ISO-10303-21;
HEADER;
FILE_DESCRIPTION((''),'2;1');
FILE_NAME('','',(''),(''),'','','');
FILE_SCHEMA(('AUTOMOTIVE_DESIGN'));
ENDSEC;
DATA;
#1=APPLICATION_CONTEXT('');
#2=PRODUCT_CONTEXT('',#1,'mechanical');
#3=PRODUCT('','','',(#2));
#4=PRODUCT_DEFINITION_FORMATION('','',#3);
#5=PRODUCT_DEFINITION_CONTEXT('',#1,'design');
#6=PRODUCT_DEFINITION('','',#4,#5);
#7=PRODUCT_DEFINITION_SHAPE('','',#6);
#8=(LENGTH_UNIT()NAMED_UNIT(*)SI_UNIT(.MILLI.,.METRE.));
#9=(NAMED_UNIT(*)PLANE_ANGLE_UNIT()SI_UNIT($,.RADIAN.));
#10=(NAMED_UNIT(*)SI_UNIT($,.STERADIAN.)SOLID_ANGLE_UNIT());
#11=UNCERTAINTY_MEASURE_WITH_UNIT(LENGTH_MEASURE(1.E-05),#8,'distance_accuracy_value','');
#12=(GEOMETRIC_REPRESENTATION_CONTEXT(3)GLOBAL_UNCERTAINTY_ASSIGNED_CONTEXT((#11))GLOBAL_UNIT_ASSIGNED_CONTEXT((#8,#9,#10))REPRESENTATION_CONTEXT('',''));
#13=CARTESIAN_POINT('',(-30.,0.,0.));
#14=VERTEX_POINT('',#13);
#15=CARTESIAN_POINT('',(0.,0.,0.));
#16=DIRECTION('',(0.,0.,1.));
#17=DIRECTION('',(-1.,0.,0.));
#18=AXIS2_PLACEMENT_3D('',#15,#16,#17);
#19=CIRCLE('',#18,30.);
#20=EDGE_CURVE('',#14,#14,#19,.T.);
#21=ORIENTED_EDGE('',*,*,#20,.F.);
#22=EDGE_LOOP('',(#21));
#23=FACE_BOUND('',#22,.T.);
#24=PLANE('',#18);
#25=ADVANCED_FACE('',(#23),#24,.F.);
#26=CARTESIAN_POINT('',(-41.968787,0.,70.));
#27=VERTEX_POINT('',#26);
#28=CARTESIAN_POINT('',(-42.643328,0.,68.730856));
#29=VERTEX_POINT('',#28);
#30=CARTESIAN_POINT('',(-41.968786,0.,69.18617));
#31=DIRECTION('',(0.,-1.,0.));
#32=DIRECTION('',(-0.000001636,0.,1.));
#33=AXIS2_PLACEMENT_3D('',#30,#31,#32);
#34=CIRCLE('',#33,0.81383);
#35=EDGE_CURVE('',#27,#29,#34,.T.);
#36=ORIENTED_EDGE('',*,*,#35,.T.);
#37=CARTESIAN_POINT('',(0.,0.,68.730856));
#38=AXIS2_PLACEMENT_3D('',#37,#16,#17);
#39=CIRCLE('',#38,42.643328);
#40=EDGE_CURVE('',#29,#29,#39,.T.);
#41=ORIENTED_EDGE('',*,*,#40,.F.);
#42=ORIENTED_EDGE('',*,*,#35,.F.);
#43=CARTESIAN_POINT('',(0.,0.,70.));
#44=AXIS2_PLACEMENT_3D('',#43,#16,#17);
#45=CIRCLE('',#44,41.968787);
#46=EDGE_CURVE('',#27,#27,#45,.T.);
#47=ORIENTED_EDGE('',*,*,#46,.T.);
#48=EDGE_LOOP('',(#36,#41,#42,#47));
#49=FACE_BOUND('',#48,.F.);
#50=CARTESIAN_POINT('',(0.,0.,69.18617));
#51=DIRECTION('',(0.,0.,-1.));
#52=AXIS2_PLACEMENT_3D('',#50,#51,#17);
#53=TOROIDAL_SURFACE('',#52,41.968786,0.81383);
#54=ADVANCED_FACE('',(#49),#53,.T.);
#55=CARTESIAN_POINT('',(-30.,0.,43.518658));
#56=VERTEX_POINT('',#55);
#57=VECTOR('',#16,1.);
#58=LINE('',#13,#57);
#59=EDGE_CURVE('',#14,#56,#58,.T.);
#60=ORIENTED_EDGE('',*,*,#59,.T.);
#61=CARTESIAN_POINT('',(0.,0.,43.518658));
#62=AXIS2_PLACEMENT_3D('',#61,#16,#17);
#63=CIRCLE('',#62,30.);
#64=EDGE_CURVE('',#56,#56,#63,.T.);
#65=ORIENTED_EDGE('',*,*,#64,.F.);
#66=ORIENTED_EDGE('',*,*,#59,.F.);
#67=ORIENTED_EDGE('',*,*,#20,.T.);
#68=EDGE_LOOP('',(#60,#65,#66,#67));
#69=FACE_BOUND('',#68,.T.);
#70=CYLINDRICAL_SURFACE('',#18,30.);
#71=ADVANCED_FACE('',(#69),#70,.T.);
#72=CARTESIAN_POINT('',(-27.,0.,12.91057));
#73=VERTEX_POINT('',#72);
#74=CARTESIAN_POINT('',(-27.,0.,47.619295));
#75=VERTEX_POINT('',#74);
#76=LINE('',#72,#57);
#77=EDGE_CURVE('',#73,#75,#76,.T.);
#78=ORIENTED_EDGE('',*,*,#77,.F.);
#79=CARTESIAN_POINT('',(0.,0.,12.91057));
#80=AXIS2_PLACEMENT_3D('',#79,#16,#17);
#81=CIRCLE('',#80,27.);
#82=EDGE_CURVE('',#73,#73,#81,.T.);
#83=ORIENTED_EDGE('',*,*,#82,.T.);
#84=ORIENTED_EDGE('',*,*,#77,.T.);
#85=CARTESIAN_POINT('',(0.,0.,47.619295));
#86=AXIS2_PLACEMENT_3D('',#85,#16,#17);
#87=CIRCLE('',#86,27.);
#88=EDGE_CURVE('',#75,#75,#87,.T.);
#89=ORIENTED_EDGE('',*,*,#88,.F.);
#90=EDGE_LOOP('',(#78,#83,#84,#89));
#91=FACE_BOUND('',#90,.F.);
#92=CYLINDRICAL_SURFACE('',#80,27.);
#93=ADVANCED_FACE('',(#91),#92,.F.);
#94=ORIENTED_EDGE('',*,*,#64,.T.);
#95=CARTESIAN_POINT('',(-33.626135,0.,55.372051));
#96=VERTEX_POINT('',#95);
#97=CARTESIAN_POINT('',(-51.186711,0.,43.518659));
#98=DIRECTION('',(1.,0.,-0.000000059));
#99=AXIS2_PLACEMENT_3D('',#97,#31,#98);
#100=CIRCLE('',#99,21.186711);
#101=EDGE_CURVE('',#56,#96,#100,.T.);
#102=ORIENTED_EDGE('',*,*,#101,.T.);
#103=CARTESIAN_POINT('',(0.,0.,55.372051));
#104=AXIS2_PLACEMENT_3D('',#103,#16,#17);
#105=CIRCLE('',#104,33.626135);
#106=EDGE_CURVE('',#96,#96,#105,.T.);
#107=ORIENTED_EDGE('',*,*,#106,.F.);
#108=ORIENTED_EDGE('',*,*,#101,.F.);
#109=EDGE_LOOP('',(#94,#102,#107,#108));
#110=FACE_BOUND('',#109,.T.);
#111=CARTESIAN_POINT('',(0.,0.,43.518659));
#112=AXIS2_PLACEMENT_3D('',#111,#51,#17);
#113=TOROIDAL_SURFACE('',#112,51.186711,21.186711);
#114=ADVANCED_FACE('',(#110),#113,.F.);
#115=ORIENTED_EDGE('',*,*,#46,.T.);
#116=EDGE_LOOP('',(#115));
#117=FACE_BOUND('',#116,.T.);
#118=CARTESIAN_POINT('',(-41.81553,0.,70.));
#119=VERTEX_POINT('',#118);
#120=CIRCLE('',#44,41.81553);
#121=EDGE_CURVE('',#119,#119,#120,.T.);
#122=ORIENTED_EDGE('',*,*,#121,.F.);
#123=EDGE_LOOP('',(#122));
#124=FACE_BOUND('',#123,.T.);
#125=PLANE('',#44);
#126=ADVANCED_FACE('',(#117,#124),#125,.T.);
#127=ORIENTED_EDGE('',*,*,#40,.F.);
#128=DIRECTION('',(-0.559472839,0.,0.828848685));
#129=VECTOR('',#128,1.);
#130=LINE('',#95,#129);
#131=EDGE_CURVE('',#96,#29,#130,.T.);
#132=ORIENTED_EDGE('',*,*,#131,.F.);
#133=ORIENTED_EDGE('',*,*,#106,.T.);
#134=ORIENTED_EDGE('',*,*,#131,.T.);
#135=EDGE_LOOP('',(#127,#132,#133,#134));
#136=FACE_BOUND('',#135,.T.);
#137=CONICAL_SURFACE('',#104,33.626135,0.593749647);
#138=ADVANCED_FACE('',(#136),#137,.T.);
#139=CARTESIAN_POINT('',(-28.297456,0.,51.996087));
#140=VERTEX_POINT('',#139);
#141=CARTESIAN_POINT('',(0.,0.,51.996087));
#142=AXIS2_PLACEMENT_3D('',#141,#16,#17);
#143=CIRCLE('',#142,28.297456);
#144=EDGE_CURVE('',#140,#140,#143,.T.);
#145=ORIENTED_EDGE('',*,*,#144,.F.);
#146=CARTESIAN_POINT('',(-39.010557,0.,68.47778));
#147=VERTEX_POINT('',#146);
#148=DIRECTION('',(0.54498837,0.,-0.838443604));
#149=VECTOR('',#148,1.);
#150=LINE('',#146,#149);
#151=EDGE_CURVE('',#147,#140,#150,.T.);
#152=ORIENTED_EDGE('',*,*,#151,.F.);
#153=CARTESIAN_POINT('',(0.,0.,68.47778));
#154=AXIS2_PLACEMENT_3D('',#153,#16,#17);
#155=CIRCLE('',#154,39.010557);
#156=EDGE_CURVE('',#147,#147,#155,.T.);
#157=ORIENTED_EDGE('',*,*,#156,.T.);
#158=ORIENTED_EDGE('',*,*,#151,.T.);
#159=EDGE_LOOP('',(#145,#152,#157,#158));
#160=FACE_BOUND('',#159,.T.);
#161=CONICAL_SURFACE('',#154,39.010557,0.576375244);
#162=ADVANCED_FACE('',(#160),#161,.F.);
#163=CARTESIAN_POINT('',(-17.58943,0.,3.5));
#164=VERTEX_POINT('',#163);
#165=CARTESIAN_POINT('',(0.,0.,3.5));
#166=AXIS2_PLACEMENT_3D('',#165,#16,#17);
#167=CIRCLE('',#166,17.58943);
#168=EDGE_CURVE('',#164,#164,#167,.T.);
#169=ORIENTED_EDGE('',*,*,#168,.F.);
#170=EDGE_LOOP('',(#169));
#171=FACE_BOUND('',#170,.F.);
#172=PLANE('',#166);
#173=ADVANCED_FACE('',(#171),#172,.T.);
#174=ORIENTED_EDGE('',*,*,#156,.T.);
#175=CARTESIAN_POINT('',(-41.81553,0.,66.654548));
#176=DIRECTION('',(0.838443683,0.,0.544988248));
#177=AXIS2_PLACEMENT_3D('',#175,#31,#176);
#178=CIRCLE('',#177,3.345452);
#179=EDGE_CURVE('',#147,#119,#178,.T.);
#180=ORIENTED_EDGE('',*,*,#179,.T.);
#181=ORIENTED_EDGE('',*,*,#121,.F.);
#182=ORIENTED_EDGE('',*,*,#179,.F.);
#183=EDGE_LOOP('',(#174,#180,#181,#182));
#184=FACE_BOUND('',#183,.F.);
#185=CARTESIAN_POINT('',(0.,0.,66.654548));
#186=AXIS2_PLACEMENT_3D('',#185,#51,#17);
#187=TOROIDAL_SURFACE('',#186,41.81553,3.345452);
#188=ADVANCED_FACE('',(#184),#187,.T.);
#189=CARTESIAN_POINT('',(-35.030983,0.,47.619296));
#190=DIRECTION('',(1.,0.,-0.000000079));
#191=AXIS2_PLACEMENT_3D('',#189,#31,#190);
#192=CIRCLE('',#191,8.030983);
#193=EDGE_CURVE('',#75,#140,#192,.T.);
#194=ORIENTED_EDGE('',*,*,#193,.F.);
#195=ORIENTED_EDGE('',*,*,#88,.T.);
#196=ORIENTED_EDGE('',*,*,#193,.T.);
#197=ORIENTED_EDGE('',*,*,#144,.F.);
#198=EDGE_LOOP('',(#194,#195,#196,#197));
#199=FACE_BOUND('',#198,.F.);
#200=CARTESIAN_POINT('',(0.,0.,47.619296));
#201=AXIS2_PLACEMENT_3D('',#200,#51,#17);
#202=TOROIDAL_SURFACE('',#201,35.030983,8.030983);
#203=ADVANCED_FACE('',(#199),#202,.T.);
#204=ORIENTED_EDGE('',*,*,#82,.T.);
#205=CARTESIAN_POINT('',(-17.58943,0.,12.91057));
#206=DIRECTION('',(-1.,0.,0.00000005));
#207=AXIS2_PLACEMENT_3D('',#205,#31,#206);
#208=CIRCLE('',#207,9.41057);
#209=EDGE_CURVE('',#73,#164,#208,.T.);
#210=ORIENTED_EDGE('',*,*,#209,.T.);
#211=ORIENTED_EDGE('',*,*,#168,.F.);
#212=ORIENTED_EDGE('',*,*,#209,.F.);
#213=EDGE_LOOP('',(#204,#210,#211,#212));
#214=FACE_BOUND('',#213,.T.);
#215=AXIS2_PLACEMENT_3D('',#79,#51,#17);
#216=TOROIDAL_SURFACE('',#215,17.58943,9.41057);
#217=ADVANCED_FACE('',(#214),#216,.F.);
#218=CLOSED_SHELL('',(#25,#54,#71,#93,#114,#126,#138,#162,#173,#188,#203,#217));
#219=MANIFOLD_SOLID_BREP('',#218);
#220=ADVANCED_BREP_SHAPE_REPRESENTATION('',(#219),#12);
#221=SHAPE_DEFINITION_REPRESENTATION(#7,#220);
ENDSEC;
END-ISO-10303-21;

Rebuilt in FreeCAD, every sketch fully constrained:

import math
import FreeCAD as App
import Part
import Sketcher

V = App.Vector

doc = App.newDocument("Part")
body = doc.addObject("PartDesign::Body", "Body")

# Sketch on XZ plane
sketch1 = body.newObject("Sketcher::SketchObject", "Sketch")
sketch1.AttachmentSupport = (doc.getObject("XZ_Plane"), [""])
sketch1.MapMode = "FlatFace"
sketch1.addGeometry(Part.LineSegment(V(-30, 0, 0), V(0, 0, 0)), False)
sketch1.addGeometry(Part.LineSegment(V(0, 0, 0), V(0, 3.5, 0)), False)
sketch1.addGeometry(Part.LineSegment(V(0, 3.5, 0), V(-17.59, 3.5, 0)), False)
sketch1.addGeometry(Part.ArcOfCircle(Part.Circle(V(-17.59, 12.91, 0), V(0, 0, 1), 9.41), math.radians(180), math.radians(270)), False)
sketch1.addGeometry(Part.LineSegment(V(-27, 12.91, 0), V(-27, 47.62, 0)), False)
sketch1.addGeometry(Part.ArcOfCircle(Part.Circle(V(-35.03, 47.62, 0), V(0, 0, 1), 8.03), math.radians(0), math.radians(33)), False)
sketch1.addGeometry(Part.LineSegment(V(-28.3, 52, 0), V(-39.01, 68.48, 0)), False)
sketch1.addGeometry(Part.ArcOfCircle(Part.Circle(V(-41.82, 66.65, 0), V(0, 0, 1), 3.35), math.radians(33), math.radians(90)), False)
sketch1.addGeometry(Part.LineSegment(V(-41.82, 70, 0), V(-41.97, 70, 0)), False)
sketch1.addGeometry(Part.ArcOfCircle(Part.Circle(V(-41.97, 69.19, 0), V(0, 0, 1), 0.81), math.radians(90), math.radians(214)), False)
sketch1.addGeometry(Part.LineSegment(V(-42.64, 68.73, 0), V(-33.63, 55.37, 0)), False)
sketch1.addGeometry(Part.ArcOfCircle(Part.Circle(V(-51.19, 43.52, 0), V(0, 0, 1), 21.19), math.radians(0), math.radians(34)), False)
sketch1.addGeometry(Part.LineSegment(V(-30, 43.52, 0), V(-30, 0, 0)), False)
sketch1.addConstraint(Sketcher.Constraint("Coincident", 0, 2, 1, 1))
sketch1.addConstraint(Sketcher.Constraint("Coincident", 1, 2, 2, 1))
sketch1.addConstraint(Sketcher.Constraint("Tangent", 2, 2, 3, 2))
sketch1.addConstraint(Sketcher.Constraint("Tangent", 3, 1, 4, 1))
sketch1.addConstraint(Sketcher.Constraint("Tangent", 4, 2, 5, 1))
sketch1.addConstraint(Sketcher.Constraint("Tangent", 5, 2, 6, 1))
sketch1.addConstraint(Sketcher.Constraint("Tangent", 6, 2, 7, 1))
sketch1.addConstraint(Sketcher.Constraint("Tangent", 7, 2, 8, 1))
sketch1.addConstraint(Sketcher.Constraint("Tangent", 8, 2, 9, 1))
sketch1.addConstraint(Sketcher.Constraint("Tangent", 9, 2, 10, 1))
sketch1.addConstraint(Sketcher.Constraint("Tangent", 10, 2, 11, 2))
sketch1.addConstraint(Sketcher.Constraint("Tangent", 11, 1, 12, 1))
sketch1.addConstraint(Sketcher.Constraint("Coincident", 12, 2, 0, 1))
sketch1.addConstraint(Sketcher.Constraint("Horizontal", 0))
sketch1.addConstraint(Sketcher.Constraint("Vertical", 1))
sketch1.addConstraint(Sketcher.Constraint("Horizontal", 2))
sketch1.addConstraint(Sketcher.Constraint("Vertical", 4))
sketch1.addConstraint(Sketcher.Constraint("Horizontal", 8))
sketch1.addConstraint(Sketcher.Constraint("Vertical", 12))
sketch1.addConstraint(Sketcher.Constraint("Coincident", 0, 2, -1, 1))
sketch1.addConstraint(Sketcher.Constraint("DistanceX", 0, 1, 0, 2, 30.0))
sketch1.addConstraint(Sketcher.Constraint("DistanceY", 1, 1, 1, 2, 3.5))
sketch1.addConstraint(Sketcher.Constraint("DistanceX", 3, 1, -1, 1, 27.0))
sketch1.addConstraint(Sketcher.Constraint("DistanceY", -1, 1, 7, 2, 70.0))
sketch1.addConstraint(Sketcher.Constraint("Radius", 3, 9.41057))
sketch1.addConstraint(Sketcher.Constraint("Radius", 9, 0.81383))
sketch1.addConstraint(Sketcher.Constraint("Radius", 11, 21.186711))
sketch1.addConstraint(Sketcher.Constraint("Radius", 5, 8.030983))
sketch1.addConstraint(Sketcher.Constraint("Radius", 7, 3.345452))
sketch1.addConstraint(Sketcher.Constraint("DistanceY", 12, 2, 12, 1, 43.518658))
sketch1.addConstraint(Sketcher.Constraint("DistanceX", 7, 3, 3, 3, 24.2261))
sketch1.addConstraint(Sketcher.Constraint("DistanceX", 6, 2, 5, 2, 10.713101))
sketch1.addConstraint(Sketcher.Constraint("DistanceX", 9, 2, 7, 2, 0.827798))
revolution = body.newObject("PartDesign::Revolution", "Revolution")
revolution.Profile = sketch1
revolution.ReferenceAxis = (sketch1, ["V_Axis"])
revolution.Angle = 360

doc.recompute()
